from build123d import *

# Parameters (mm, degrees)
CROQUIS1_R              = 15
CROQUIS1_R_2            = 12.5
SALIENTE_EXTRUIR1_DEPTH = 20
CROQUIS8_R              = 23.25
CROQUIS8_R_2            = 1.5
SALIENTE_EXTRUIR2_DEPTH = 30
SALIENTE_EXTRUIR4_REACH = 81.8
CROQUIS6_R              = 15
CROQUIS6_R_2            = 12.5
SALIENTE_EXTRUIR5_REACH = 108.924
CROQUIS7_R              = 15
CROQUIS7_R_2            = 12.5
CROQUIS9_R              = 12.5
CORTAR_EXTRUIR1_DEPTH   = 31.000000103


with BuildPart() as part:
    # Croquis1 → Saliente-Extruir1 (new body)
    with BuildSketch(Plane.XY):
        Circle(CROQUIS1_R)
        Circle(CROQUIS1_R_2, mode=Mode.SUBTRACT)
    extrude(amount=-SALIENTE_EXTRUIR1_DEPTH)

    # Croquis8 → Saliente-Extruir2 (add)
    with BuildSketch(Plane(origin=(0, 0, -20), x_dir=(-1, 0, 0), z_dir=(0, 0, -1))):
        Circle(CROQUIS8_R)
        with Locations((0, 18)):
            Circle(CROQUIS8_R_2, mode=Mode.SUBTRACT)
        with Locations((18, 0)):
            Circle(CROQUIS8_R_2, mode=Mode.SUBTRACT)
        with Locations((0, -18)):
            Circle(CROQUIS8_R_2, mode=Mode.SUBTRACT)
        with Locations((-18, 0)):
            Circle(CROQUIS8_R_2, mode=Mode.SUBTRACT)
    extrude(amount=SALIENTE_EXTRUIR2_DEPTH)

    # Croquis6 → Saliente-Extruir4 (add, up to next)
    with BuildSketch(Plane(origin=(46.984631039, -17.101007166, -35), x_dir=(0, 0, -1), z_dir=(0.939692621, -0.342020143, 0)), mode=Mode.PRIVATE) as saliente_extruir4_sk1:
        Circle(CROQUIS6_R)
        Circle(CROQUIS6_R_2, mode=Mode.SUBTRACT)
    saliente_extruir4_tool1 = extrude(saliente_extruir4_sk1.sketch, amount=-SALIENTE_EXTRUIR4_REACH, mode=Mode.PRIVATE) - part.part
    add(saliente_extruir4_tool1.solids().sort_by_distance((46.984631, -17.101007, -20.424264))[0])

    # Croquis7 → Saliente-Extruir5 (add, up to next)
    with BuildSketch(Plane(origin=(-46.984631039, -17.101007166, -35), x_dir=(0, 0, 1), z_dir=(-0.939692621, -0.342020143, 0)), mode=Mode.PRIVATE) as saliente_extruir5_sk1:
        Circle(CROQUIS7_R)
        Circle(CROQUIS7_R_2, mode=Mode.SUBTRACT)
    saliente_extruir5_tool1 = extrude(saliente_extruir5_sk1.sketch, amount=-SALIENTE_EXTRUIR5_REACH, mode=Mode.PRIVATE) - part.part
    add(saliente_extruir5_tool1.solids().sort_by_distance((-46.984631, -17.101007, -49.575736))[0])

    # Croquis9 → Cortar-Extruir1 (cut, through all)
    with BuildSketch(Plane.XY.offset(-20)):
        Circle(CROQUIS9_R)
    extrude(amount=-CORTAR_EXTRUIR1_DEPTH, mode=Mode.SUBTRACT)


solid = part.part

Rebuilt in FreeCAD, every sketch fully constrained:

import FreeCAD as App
import Part
import Sketcher
from FreeCAD import Vector

doc = App.newDocument("Part")
params = doc.addObject("Spreadsheet::Sheet", "Params")
for row, (alias, value) in enumerate([
    ("sketch1_diameter", "30 mm"),
    ("sketch1_diameter2", "25 mm"),
    ("pad1_length", "20 mm"),
    ("sketch2_diameter", "3 mm"),
    ("sketch2_diameter2", "46.5 mm"),
    ("pad2_length", "30 mm"),
    ("sketch3_diameter", "30 mm"),
    ("sketch3_diameter2", "25 mm"),
    ("sketch4_diameter", "30 mm"),
    ("sketch4_diameter2", "25 mm"),
    ("sketch5_diameter", "25 mm"),
], start=1):
    params.set(f"A{row}", alias)
    params.set(f"B{row}", "=" + value)
    params.setAlias(f"B{row}", alias)

body = doc.addObject("PartDesign::Body", "Body")

sketch1 = body.newObject("Sketcher::SketchObject", "Sketch")
sketch1.AttachmentSupport = (doc.getObject("XY_Plane"), [""])
sketch1.MapMode = "FlatFace"
sketch1.addGeometry(Part.Circle(Vector(0, 0, 0), Vector(0, 0, 1), 15), False)
sketch1.addGeometry(Part.Circle(Vector(0, 0, 0), Vector(0, 0, 1), 12), False)
sketch1.addConstraint(Sketcher.Constraint("Coincident", 0, 3, -1, 1))
sketch1.addConstraint(Sketcher.Constraint("Coincident", 1, 3, -1, 1))
sketch1.addConstraint(Sketcher.Constraint("Diameter", 0, 30.0))
sketch1.addConstraint(Sketcher.Constraint("Diameter", 1, 25.0))
sketch1.setExpression("Constraints[2]", "Params.sketch1_diameter")
sketch1.setExpression("Constraints[3]", "Params.sketch1_diameter2")
pad1 = body.newObject("PartDesign::Pad", "Pad")
pad1.Profile = sketch1
pad1.setExpression("Length", "Params.pad1_length")
pad1.Reversed = True

sketch2 = body.newObject("Sketcher::SketchObject", "Sketch001")
sketch2.AttachmentSupport = (doc.getObject("XY_Plane"), [""])
sketch2.MapMode = "FlatFace"
sketch2.AttachmentOffset = App.Placement(Vector(0, 0, -20), App.Rotation())
sketch2.addGeometry(Part.Circle(Vector(0, 0, 0), Vector(0, 0, 1), 23.2), False)
sketch2.addGeometry(Part.Circle(Vector(0, -18, 0), Vector(0, 0, 1), 1.5), False)
sketch2.addGeometry(Part.Circle(Vector(18, 0, 0), Vector(0, 0, 1), 1.5), False)
sketch2.addGeometry(Part.Circle(Vector(-18, 0, 0), Vector(0, 0, 1), 1.5), False)
sketch2.addGeometry(Part.Circle(Vector(0, 18, 0), Vector(0, 0, 1), 1.5), False)
sketch2.addConstraint(Sketcher.Constraint("Coincident", 0, 3, -1, 1))
sketch2.addConstraint(Sketcher.Constraint("Equal", 1, 2))
sketch2.addConstraint(Sketcher.Constraint("Equal", 2, 3))
sketch2.addConstraint(Sketcher.Constraint("Equal", 3, 4))
sketch2.addConstraint(Sketcher.Constraint("Symmetric", 2, 3, 3, 3, -1, 1))
sketch2.addConstraint(Sketcher.Constraint("Symmetric", 1, 3, 4, 3, -1, 1))
sketch2.addConstraint(Sketcher.Constraint("PointOnObject", 1, 3, -2))
sketch2.addConstraint(Sketcher.Constraint("PointOnObject", 2, 3, -1))
sketch2.addConstraint(Sketcher.Constraint("Diameter", 1, 3.0))
sketch2.addConstraint(Sketcher.Constraint("Diameter", 0, 46.5))
sketch2.addConstraint(Sketcher.Constraint("DistanceY", 1, 3, -1, 1, 18.0))
sketch2.addConstraint(Sketcher.Constraint("DistanceX", -1, 1, 2, 3, 18.0))
sketch2.setExpression("Constraints[8]", "Params.sketch2_diameter")
sketch2.setExpression("Constraints[9]", "Params.sketch2_diameter2")
pad2 = body.newObject("PartDesign::Pad", "Pad001")
pad2.Profile = sketch2
pad2.setExpression("Length", "Params.pad2_length")
pad2.Reversed = True

sketch3 = body.newObject("Sketcher::SketchObject", "Sketch002")
sketch3.Placement = App.Placement(Vector(46.984631, -17.101007, -35), App.Rotation(Vector(0, 0, -1), Vector(0.342020143, 0.939692621, 0), Vector(0.939692621, -0.342020143, 0), "ZXY"))
sketch3.addGeometry(Part.Circle(Vector(0, 0, 0), Vector(0, 0, 1), 15), False)
sketch3.addGeometry(Part.Circle(Vector(0, 0, 0), Vector(0, 0, 1), 12), False)
sketch3.addConstraint(Sketcher.Constraint("Coincident", 0, 3, -1, 1))
sketch3.addConstraint(Sketcher.Constraint("Coincident", 1, 3, -1, 1))
sketch3.addConstraint(Sketcher.Constraint("Diameter", 0, 30.0))
sketch3.addConstraint(Sketcher.Constraint("Diameter", 1, 25.0))
sketch3.setExpression("Constraints[2]", "Params.sketch3_diameter")
sketch3.setExpression("Constraints[3]", "Params.sketch3_diameter2")
pad3 = body.newObject("PartDesign::Pad", "Pad002")
pad3.Profile = sketch3
pad3.Type = "UpToFirst"
pad3.Reversed = True

sketch4 = body.newObject("Sketcher::SketchObject", "Sketch003")
sketch4.Placement = App.Placement(Vector(-46.984631, -17.101007, -35), App.Rotation(Vector(0, 0, 1), Vector(-0.342020143, 0.939692621, 0), Vector(-0.939692621, -0.342020143, 0), "ZXY"))
sketch4.addGeometry(Part.Circle(Vector(0, 0, 0), Vector(0, 0, 1), 15), False)
sketch4.addGeometry(Part.Circle(Vector(0, 0, 0), Vector(0, 0, 1), 12), False)
sketch4.addConstraint(Sketcher.Constraint("Coincident", 0, 3, -1, 1))
sketch4.addConstraint(Sketcher.Constraint("Coincident", 1, 3, -1, 1))
sketch4.addConstraint(Sketcher.Constraint("Diameter", 0, 30.0))
sketch4.addConstraint(Sketcher.Constraint("Diameter", 1, 25.0))
sketch4.setExpression("Constraints[2]", "Params.sketch4_diameter")
sketch4.setExpression("Constraints[3]", "Params.sketch4_diameter2")
pad4 = body.newObject("PartDesign::Pad", "Pad003")
pad4.Profile = sketch4
pad4.Type = "UpToFirst"
pad4.Reversed = True

sketch5 = body.newObject("Sketcher::SketchObject", "Sketch004")
sketch5.AttachmentSupport = (doc.getObject("XY_Plane"), [""])
sketch5.MapMode = "FlatFace"
sketch5.AttachmentOffset = App.Placement(Vector(0, 0, -20), App.Rotation())
sketch5.addGeometry(Part.Circle(Vector(0, 0, 0), Vector(0, 0, 1), 12), False)
sketch5.addConstraint(Sketcher.Constraint("Coincident", 0, 3, -1, 1))
sketch5.addConstraint(Sketcher.Constraint("Diameter", 0, 25.0))
sketch5.setExpression("Constraints[1]", "Params.sketch5_diameter")
pocket1 = body.newObject("PartDesign::Pocket", "Pocket")
pocket1.Profile = sketch5
pocket1.Type = "ThroughAll"

doc.recompute()
